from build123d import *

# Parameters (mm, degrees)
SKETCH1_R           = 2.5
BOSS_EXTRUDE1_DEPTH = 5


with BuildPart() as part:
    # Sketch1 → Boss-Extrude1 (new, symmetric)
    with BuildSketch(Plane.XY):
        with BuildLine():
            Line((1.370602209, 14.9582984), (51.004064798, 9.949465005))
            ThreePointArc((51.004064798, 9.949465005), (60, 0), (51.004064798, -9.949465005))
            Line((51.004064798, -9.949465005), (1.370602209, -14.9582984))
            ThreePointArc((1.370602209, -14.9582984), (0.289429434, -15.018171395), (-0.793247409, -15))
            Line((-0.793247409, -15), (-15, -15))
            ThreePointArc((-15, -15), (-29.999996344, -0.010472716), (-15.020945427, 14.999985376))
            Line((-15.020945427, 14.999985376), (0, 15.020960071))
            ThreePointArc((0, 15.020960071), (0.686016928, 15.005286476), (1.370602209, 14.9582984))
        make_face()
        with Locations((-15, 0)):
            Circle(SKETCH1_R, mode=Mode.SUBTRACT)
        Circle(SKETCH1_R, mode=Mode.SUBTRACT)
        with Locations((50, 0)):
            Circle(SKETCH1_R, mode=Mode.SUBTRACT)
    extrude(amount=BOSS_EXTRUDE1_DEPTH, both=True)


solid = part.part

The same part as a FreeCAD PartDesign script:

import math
import FreeCAD as App
import Part
import Sketcher

V = App.Vector
Q = App.Units.Quantity

doc = App.newDocument("Part")
body = doc.addObject("PartDesign::Body", "Body")

sketch1 = body.newObject("Sketcher::SketchObject", "Sketch")
sketch1.AttachmentSupport = (doc.getObject("XY_Plane"), [""])
sketch1.MapMode = "FlatFace"
sketch1.addGeometry(Part.LineSegment(V(51, 9.9, 0), V(1.4, 15, 0)), False)
sketch1.addGeometry(Part.ArcOfCircle(Part.Circle(V(0, 0, 0), V(0, 0, 1), 15), math.radians(84.76), math.radians(90)), False)
sketch1.addGeometry(Part.LineSegment(V(0, 15, 0), V(-15, 15, 0)), False)
sketch1.addGeometry(Part.ArcOfCircle(Part.Circle(V(-15, 0, 0), V(0, 0, 1), 15), math.radians(90), math.radians(270)), False)
sketch1.addGeometry(Part.LineSegment(V(-15, -15, 0), V(-0.8, -15, 0)), False)
sketch1.addGeometry(Part.ArcOfCircle(Part.Circle(V(0, 0, 0), V(0, 0, 1), 15), math.radians(-93.03), math.radians(-84.76)), False)
sketch1.addGeometry(Part.LineSegment(V(1.4, -15, 0), V(51, -9.9, 0)), False)
sketch1.addGeometry(Part.ArcOfCircle(Part.Circle(V(50, 0, 0), V(0, 0, 1), 10), math.radians(-84), math.radians(84)), False)
sketch1.addGeometry(Part.Circle(V(50, 0, 0), V(0, 0, 1), 2.5), False)
sketch1.addGeometry(Part.Circle(V(0, 0, 0), V(0, 0, 1), 2.5), False)
sketch1.addGeometry(Part.Circle(V(-15, 0, 0), V(0, 0, 1), 2.5), False)
sketch1.addConstraint(Sketcher.Constraint("Coincident", 0, 2, 1, 1))
sketch1.addConstraint(Sketcher.Constraint("Coincident", 1, 2, 2, 1))
sketch1.addConstraint(Sketcher.Constraint("Tangent", 2, 2, 3, 1))
sketch1.addConstraint(Sketcher.Constraint("Tangent", 3, 2, 4, 1))
sketch1.addConstraint(Sketcher.Constraint("Coincident", 4, 2, 5, 1))
sketch1.addConstraint(Sketcher.Constraint("Coincident", 5, 2, 6, 1))
sketch1.addConstraint(Sketcher.Constraint("Tangent", 6, 2, 7, 1))
sketch1.addConstraint(Sketcher.Constraint("Tangent", 7, 2, 0, 1))
sketch1.addConstraint(Sketcher.Constraint("Horizontal", 4))
sketch1.addConstraint(Sketcher.Constraint("Coincident", 1, 3, -1, 1))
sketch1.addConstraint(Sketcher.Constraint("Coincident", 5, 3, -1, 1))
sketch1.addConstraint(Sketcher.Constraint("Coincident", 9, 3, -1, 1))
sketch1.addConstraint(Sketcher.Constraint("Coincident", 8, 3, 7, 3))
sketch1.addConstraint(Sketcher.Constraint("Coincident", 10, 3, 3, 3))
sketch1.addConstraint(Sketcher.Constraint("Equal", 1, 5))
sketch1.addConstraint(Sketcher.Constraint("Equal", 8, 9))
sketch1.addConstraint(Sketcher.Constraint("Equal", 9, 10))
sketch1.addConstraint(Sketcher.Constraint("Symmetric", 6, 2, 7, 2, -1))
sketch1.addConstraint(Sketcher.Constraint("PointOnObject", 3, 3, -1))
sketch1.addConstraint(Sketcher.Constraint("PointOnObject", 1, 2, -2))
sketch1.addConstraint(Sketcher.Constraint("Diameter", 8, Q("5 mm")))
sketch1.addConstraint(Sketcher.Constraint("Radius", 3, Q("15 mm")))
sketch1.addConstraint(Sketcher.Constraint("Radius", 7, Q("10 mm")))
sketch1.addConstraint(Sketcher.Constraint("DistanceX", 3, 3, -1, 1, Q("15 mm")))
sketch1.addConstraint(Sketcher.Constraint("DistanceX", -1, 1, 7, 3, Q("50 mm")))
sketch1.addConstraint(Sketcher.Constraint("Angle", 2, Q("-179.919994 deg")))
sketch1.addConstraint(Sketcher.Constraint("DistanceY", -1, 1, 0, 2, Q("14.958298 mm")))
pad1 = body.newObject("PartDesign::Pad", "Pad")
pad1.Profile = sketch1
pad1.Length = 10
pad1.Midplane = True

doc.recompute()
